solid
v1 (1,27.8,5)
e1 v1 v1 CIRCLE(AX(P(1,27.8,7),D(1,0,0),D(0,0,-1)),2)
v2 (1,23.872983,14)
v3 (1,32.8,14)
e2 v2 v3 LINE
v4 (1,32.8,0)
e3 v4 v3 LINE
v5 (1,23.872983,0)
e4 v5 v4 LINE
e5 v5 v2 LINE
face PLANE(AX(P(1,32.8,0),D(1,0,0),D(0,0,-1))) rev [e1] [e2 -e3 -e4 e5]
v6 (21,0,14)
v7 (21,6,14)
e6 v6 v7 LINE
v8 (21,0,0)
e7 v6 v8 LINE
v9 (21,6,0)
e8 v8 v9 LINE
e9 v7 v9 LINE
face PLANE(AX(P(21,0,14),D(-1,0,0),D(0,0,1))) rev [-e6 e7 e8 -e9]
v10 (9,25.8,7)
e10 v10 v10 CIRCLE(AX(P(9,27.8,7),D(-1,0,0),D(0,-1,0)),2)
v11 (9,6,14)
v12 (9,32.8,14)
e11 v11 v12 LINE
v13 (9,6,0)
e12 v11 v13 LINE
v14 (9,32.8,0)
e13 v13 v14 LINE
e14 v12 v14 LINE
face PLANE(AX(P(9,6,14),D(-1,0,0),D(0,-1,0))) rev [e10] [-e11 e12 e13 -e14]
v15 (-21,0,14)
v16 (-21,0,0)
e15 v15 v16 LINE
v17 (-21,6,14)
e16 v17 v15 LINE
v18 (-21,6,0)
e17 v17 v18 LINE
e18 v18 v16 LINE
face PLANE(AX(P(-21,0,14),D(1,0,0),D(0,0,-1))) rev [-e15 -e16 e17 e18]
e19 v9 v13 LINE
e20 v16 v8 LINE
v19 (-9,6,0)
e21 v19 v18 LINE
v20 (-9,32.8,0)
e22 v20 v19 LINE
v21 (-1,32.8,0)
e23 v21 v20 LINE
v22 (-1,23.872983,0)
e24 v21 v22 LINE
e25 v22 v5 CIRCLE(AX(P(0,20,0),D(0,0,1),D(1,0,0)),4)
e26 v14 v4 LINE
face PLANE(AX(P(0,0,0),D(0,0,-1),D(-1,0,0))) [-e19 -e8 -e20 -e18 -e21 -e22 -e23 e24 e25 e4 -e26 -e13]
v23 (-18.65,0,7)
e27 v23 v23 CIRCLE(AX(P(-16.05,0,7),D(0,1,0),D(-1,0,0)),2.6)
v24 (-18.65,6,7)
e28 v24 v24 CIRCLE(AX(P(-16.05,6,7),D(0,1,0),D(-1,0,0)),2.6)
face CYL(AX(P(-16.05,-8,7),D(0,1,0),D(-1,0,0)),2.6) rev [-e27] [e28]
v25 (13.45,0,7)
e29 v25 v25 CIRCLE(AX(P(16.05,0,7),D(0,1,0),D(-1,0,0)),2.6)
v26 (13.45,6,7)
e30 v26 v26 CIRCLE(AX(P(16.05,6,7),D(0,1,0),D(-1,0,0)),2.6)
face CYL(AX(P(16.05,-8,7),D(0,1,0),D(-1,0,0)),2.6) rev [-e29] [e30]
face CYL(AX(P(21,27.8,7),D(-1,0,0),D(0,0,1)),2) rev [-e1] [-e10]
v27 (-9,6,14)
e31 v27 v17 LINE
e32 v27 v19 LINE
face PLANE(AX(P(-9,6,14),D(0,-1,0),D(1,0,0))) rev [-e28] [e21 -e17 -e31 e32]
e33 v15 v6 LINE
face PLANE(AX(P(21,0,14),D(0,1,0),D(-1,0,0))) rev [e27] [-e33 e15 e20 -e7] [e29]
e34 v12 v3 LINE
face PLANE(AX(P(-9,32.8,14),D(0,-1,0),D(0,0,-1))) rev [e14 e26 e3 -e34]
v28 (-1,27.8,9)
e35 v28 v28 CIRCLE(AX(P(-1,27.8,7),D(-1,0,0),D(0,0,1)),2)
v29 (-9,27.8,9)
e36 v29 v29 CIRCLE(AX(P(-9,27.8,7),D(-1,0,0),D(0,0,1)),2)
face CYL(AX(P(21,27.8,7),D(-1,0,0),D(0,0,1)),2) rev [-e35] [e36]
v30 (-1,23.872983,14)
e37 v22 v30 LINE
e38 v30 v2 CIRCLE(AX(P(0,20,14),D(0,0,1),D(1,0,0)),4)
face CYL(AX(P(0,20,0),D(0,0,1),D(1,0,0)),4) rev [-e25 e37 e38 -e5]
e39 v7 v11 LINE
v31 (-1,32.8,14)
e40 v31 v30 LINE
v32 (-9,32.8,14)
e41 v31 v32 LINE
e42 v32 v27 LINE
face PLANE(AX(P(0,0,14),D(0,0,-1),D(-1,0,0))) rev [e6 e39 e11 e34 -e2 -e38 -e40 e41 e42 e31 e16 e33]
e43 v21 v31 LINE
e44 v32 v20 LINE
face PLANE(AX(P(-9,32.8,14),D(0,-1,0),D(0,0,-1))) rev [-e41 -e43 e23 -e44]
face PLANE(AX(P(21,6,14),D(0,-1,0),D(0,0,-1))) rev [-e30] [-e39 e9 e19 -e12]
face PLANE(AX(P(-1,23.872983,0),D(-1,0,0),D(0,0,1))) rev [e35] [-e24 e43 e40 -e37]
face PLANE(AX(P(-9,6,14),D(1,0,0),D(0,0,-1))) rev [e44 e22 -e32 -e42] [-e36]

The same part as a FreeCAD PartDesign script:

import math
import FreeCAD as App
import Part
import Sketcher

V = App.Vector
Q = App.Units.Quantity

doc = App.newDocument("Part")
body = doc.addObject("PartDesign::Body", "Body")

sketch1 = body.newObject("Sketcher::SketchObject", "Sketch")
sketch1.AttachmentSupport = (doc.getObject("XY_Plane"), [""])
sketch1.MapMode = "FlatFace"
sketch1.addGeometry([
    Part.LineSegment(V(-9, 32.8, 0), V(-9, 6, 0)),
    Part.LineSegment(V(-9, 6, 0), V(-21, 6, 0)),
    Part.LineSegment(V(-21, 6, 0), V(-21, 0, 0)),
    Part.LineSegment(V(-21, 0, 0), V(21, 0, 0)),
    Part.LineSegment(V(21, 0, 0), V(21, 6, 0)),
    Part.LineSegment(V(21, 6, 0), V(9, 6, 0)),
    Part.LineSegment(V(9, 6, 0), V(9, 32.8, 0)),
    Part.LineSegment(V(9, 32.8, 0), V(-9, 32.8, 0)),
], False)
sketch1.addConstraint([
    Sketcher.Constraint("Coincident", 0, 2, 1, 1),
    Sketcher.Constraint("Coincident", 1, 2, 2, 1),
    Sketcher.Constraint("Coincident", 2, 2, 3, 1),
    Sketcher.Constraint("Coincident", 3, 2, 4, 1),
    Sketcher.Constraint("Coincident", 4, 2, 5, 1),
    Sketcher.Constraint("Coincident", 5, 2, 6, 1),
    Sketcher.Constraint("Coincident", 6, 2, 7, 1),
    Sketcher.Constraint("Coincident", 7, 2, 0, 1),
    Sketcher.Constraint("Vertical", 0),
    Sketcher.Constraint("Horizontal", 1),
    Sketcher.Constraint("Vertical", 2),
    Sketcher.Constraint("Horizontal", 3),
    Sketcher.Constraint("Vertical", 4),
    Sketcher.Constraint("Horizontal", 5),
    Sketcher.Constraint("Vertical", 6),
    Sketcher.Constraint("Horizontal", 7),
    Sketcher.Constraint("Symmetric", 2, 2, 3, 2, -1, 1),
    Sketcher.Constraint("Symmetric", 0, 2, 5, 2, -2),
    Sketcher.Constraint("DistanceX", 1, 2, 1, 1, Q("12 mm")),
    Sketcher.Constraint("DistanceX", 3, 1, 3, 2, Q("42 mm")),
    Sketcher.Constraint("DistanceY", 2, 2, 2, 1, Q("6 mm")),
    Sketcher.Constraint("DistanceY", 0, 2, 0, 1, Q("26.8 mm")),
])
pad1 = body.newObject("PartDesign::Pad", "Pad")
pad1.Profile = sketch1
pad1.Length = 14

sketch2 = body.newObject("Sketcher::SketchObject", "Sketch001")
sketch2.AttachmentSupport = (doc.getObject("XZ_Plane"), [""])
sketch2.MapMode = "FlatFace"
sketch2.AttachmentOffset = App.Placement(V(0, 0, -6), App.Rotation())
sketch2.addGeometry([
    Part.Circle(V(-16.05, 7, 0), V(0, 0, 1), 2.6),
    Part.Circle(V(16.05, 7, 0), V(0, 0, 1), 2.6),
], False)
sketch2.addConstraint([
    Sketcher.Constraint("Equal", 0, 1),
    Sketcher.Constraint("Symmetric", 0, 3, 1, 3, -2),
    Sketcher.Constraint("Diameter", 0, Q("5.2 mm")),
    Sketcher.Constraint("DistanceY", -1, 1, 0, 3, Q("7 mm")),
    Sketcher.Constraint("DistanceX", 0, 3, 1, 3, Q("32.1 mm")),
])
pocket1 = body.newObject("PartDesign::Pocket", "Pocket")
pocket1.Profile = sketch2
pocket1.Length = 14
pocket1.Reversed = True

sketch3 = body.newObject("Sketcher::SketchObject", "Sketch002")
sketch3.AttachmentSupport = (doc.getObject("XY_Plane"), [""])
sketch3.MapMode = "FlatFace"
sketch3.AttachmentOffset = App.Placement(V(0, 0, 14), App.Rotation())
sketch3.addGeometry([
    Part.LineSegment(V(-1, 32.8, 0), V(-1, 23.872983, 0)),
    Part.ArcOfCircle(Part.Circle(V(0, 20, 0), V(0, 0, 1), 4), math.radians(104.477512), math.radians(435.522488)),
    Part.LineSegment(V(1, 23.872983, 0), V(1, 32.8, 0)),
    Part.LineSegment(V(1, 32.8, 0), V(-1, 32.8, 0)),
], False)
sketch3.addConstraint([
    Sketcher.Constraint("Coincident", 0, 2, 1, 1),
    Sketcher.Constraint("Coincident", 1, 2, 2, 1),
    Sketcher.Constraint("Coincident", 2, 2, 3, 1),
    Sketcher.Constraint("Coincident", 3, 2, 0, 1),
    Sketcher.Constraint("Vertical", 0),
    Sketcher.Constraint("Vertical", 2),
    Sketcher.Constraint("Horizontal", 3),
    Sketcher.Constraint("Symmetric", 0, 2, 1, 2, -2),
    Sketcher.Constraint("Radius", 1, Q("4 mm")),
    Sketcher.Constraint("DistanceX", 3, 2, 3, 1, Q("2 mm")),
    Sketcher.Constraint("DistanceY", -1, 1, 1, 3, Q("20 mm")),
    Sketcher.Constraint("DistanceY", -1, 1, 2, 2, Q("32.8 mm")),
])
pocket2 = body.newObject("PartDesign::Pocket", "Pocket001")
pocket2.Profile = sketch3
pocket2.Type = "ThroughAll"

sketch4 = body.newObject("Sketcher::SketchObject", "Sketch003")
sketch4.AttachmentSupport = (doc.getObject("YZ_Plane"), [""])
sketch4.MapMode = "FlatFace"
sketch4.AttachmentOffset = App.Placement(V(0, 0, -9), App.Rotation())
sketch4.addGeometry(Part.Circle(V(27.8, 7, 0), V(0, 0, 1), 2), False)
sketch4.addConstraint([
    Sketcher.Constraint("Diameter", 0, Q("4 mm")),
    Sketcher.Constraint("DistanceY", -1, 1, 0, 3, Q("7 mm")),
    Sketcher.Constraint("DistanceX", -1, 1, 0, 3, Q("27.8 mm")),
])
pocket3 = body.newObject("PartDesign::Pocket", "Pocket002")
pocket3.Profile = sketch4
pocket3.Type = "ThroughAll"
pocket3.Reversed = True

doc.recompute()
